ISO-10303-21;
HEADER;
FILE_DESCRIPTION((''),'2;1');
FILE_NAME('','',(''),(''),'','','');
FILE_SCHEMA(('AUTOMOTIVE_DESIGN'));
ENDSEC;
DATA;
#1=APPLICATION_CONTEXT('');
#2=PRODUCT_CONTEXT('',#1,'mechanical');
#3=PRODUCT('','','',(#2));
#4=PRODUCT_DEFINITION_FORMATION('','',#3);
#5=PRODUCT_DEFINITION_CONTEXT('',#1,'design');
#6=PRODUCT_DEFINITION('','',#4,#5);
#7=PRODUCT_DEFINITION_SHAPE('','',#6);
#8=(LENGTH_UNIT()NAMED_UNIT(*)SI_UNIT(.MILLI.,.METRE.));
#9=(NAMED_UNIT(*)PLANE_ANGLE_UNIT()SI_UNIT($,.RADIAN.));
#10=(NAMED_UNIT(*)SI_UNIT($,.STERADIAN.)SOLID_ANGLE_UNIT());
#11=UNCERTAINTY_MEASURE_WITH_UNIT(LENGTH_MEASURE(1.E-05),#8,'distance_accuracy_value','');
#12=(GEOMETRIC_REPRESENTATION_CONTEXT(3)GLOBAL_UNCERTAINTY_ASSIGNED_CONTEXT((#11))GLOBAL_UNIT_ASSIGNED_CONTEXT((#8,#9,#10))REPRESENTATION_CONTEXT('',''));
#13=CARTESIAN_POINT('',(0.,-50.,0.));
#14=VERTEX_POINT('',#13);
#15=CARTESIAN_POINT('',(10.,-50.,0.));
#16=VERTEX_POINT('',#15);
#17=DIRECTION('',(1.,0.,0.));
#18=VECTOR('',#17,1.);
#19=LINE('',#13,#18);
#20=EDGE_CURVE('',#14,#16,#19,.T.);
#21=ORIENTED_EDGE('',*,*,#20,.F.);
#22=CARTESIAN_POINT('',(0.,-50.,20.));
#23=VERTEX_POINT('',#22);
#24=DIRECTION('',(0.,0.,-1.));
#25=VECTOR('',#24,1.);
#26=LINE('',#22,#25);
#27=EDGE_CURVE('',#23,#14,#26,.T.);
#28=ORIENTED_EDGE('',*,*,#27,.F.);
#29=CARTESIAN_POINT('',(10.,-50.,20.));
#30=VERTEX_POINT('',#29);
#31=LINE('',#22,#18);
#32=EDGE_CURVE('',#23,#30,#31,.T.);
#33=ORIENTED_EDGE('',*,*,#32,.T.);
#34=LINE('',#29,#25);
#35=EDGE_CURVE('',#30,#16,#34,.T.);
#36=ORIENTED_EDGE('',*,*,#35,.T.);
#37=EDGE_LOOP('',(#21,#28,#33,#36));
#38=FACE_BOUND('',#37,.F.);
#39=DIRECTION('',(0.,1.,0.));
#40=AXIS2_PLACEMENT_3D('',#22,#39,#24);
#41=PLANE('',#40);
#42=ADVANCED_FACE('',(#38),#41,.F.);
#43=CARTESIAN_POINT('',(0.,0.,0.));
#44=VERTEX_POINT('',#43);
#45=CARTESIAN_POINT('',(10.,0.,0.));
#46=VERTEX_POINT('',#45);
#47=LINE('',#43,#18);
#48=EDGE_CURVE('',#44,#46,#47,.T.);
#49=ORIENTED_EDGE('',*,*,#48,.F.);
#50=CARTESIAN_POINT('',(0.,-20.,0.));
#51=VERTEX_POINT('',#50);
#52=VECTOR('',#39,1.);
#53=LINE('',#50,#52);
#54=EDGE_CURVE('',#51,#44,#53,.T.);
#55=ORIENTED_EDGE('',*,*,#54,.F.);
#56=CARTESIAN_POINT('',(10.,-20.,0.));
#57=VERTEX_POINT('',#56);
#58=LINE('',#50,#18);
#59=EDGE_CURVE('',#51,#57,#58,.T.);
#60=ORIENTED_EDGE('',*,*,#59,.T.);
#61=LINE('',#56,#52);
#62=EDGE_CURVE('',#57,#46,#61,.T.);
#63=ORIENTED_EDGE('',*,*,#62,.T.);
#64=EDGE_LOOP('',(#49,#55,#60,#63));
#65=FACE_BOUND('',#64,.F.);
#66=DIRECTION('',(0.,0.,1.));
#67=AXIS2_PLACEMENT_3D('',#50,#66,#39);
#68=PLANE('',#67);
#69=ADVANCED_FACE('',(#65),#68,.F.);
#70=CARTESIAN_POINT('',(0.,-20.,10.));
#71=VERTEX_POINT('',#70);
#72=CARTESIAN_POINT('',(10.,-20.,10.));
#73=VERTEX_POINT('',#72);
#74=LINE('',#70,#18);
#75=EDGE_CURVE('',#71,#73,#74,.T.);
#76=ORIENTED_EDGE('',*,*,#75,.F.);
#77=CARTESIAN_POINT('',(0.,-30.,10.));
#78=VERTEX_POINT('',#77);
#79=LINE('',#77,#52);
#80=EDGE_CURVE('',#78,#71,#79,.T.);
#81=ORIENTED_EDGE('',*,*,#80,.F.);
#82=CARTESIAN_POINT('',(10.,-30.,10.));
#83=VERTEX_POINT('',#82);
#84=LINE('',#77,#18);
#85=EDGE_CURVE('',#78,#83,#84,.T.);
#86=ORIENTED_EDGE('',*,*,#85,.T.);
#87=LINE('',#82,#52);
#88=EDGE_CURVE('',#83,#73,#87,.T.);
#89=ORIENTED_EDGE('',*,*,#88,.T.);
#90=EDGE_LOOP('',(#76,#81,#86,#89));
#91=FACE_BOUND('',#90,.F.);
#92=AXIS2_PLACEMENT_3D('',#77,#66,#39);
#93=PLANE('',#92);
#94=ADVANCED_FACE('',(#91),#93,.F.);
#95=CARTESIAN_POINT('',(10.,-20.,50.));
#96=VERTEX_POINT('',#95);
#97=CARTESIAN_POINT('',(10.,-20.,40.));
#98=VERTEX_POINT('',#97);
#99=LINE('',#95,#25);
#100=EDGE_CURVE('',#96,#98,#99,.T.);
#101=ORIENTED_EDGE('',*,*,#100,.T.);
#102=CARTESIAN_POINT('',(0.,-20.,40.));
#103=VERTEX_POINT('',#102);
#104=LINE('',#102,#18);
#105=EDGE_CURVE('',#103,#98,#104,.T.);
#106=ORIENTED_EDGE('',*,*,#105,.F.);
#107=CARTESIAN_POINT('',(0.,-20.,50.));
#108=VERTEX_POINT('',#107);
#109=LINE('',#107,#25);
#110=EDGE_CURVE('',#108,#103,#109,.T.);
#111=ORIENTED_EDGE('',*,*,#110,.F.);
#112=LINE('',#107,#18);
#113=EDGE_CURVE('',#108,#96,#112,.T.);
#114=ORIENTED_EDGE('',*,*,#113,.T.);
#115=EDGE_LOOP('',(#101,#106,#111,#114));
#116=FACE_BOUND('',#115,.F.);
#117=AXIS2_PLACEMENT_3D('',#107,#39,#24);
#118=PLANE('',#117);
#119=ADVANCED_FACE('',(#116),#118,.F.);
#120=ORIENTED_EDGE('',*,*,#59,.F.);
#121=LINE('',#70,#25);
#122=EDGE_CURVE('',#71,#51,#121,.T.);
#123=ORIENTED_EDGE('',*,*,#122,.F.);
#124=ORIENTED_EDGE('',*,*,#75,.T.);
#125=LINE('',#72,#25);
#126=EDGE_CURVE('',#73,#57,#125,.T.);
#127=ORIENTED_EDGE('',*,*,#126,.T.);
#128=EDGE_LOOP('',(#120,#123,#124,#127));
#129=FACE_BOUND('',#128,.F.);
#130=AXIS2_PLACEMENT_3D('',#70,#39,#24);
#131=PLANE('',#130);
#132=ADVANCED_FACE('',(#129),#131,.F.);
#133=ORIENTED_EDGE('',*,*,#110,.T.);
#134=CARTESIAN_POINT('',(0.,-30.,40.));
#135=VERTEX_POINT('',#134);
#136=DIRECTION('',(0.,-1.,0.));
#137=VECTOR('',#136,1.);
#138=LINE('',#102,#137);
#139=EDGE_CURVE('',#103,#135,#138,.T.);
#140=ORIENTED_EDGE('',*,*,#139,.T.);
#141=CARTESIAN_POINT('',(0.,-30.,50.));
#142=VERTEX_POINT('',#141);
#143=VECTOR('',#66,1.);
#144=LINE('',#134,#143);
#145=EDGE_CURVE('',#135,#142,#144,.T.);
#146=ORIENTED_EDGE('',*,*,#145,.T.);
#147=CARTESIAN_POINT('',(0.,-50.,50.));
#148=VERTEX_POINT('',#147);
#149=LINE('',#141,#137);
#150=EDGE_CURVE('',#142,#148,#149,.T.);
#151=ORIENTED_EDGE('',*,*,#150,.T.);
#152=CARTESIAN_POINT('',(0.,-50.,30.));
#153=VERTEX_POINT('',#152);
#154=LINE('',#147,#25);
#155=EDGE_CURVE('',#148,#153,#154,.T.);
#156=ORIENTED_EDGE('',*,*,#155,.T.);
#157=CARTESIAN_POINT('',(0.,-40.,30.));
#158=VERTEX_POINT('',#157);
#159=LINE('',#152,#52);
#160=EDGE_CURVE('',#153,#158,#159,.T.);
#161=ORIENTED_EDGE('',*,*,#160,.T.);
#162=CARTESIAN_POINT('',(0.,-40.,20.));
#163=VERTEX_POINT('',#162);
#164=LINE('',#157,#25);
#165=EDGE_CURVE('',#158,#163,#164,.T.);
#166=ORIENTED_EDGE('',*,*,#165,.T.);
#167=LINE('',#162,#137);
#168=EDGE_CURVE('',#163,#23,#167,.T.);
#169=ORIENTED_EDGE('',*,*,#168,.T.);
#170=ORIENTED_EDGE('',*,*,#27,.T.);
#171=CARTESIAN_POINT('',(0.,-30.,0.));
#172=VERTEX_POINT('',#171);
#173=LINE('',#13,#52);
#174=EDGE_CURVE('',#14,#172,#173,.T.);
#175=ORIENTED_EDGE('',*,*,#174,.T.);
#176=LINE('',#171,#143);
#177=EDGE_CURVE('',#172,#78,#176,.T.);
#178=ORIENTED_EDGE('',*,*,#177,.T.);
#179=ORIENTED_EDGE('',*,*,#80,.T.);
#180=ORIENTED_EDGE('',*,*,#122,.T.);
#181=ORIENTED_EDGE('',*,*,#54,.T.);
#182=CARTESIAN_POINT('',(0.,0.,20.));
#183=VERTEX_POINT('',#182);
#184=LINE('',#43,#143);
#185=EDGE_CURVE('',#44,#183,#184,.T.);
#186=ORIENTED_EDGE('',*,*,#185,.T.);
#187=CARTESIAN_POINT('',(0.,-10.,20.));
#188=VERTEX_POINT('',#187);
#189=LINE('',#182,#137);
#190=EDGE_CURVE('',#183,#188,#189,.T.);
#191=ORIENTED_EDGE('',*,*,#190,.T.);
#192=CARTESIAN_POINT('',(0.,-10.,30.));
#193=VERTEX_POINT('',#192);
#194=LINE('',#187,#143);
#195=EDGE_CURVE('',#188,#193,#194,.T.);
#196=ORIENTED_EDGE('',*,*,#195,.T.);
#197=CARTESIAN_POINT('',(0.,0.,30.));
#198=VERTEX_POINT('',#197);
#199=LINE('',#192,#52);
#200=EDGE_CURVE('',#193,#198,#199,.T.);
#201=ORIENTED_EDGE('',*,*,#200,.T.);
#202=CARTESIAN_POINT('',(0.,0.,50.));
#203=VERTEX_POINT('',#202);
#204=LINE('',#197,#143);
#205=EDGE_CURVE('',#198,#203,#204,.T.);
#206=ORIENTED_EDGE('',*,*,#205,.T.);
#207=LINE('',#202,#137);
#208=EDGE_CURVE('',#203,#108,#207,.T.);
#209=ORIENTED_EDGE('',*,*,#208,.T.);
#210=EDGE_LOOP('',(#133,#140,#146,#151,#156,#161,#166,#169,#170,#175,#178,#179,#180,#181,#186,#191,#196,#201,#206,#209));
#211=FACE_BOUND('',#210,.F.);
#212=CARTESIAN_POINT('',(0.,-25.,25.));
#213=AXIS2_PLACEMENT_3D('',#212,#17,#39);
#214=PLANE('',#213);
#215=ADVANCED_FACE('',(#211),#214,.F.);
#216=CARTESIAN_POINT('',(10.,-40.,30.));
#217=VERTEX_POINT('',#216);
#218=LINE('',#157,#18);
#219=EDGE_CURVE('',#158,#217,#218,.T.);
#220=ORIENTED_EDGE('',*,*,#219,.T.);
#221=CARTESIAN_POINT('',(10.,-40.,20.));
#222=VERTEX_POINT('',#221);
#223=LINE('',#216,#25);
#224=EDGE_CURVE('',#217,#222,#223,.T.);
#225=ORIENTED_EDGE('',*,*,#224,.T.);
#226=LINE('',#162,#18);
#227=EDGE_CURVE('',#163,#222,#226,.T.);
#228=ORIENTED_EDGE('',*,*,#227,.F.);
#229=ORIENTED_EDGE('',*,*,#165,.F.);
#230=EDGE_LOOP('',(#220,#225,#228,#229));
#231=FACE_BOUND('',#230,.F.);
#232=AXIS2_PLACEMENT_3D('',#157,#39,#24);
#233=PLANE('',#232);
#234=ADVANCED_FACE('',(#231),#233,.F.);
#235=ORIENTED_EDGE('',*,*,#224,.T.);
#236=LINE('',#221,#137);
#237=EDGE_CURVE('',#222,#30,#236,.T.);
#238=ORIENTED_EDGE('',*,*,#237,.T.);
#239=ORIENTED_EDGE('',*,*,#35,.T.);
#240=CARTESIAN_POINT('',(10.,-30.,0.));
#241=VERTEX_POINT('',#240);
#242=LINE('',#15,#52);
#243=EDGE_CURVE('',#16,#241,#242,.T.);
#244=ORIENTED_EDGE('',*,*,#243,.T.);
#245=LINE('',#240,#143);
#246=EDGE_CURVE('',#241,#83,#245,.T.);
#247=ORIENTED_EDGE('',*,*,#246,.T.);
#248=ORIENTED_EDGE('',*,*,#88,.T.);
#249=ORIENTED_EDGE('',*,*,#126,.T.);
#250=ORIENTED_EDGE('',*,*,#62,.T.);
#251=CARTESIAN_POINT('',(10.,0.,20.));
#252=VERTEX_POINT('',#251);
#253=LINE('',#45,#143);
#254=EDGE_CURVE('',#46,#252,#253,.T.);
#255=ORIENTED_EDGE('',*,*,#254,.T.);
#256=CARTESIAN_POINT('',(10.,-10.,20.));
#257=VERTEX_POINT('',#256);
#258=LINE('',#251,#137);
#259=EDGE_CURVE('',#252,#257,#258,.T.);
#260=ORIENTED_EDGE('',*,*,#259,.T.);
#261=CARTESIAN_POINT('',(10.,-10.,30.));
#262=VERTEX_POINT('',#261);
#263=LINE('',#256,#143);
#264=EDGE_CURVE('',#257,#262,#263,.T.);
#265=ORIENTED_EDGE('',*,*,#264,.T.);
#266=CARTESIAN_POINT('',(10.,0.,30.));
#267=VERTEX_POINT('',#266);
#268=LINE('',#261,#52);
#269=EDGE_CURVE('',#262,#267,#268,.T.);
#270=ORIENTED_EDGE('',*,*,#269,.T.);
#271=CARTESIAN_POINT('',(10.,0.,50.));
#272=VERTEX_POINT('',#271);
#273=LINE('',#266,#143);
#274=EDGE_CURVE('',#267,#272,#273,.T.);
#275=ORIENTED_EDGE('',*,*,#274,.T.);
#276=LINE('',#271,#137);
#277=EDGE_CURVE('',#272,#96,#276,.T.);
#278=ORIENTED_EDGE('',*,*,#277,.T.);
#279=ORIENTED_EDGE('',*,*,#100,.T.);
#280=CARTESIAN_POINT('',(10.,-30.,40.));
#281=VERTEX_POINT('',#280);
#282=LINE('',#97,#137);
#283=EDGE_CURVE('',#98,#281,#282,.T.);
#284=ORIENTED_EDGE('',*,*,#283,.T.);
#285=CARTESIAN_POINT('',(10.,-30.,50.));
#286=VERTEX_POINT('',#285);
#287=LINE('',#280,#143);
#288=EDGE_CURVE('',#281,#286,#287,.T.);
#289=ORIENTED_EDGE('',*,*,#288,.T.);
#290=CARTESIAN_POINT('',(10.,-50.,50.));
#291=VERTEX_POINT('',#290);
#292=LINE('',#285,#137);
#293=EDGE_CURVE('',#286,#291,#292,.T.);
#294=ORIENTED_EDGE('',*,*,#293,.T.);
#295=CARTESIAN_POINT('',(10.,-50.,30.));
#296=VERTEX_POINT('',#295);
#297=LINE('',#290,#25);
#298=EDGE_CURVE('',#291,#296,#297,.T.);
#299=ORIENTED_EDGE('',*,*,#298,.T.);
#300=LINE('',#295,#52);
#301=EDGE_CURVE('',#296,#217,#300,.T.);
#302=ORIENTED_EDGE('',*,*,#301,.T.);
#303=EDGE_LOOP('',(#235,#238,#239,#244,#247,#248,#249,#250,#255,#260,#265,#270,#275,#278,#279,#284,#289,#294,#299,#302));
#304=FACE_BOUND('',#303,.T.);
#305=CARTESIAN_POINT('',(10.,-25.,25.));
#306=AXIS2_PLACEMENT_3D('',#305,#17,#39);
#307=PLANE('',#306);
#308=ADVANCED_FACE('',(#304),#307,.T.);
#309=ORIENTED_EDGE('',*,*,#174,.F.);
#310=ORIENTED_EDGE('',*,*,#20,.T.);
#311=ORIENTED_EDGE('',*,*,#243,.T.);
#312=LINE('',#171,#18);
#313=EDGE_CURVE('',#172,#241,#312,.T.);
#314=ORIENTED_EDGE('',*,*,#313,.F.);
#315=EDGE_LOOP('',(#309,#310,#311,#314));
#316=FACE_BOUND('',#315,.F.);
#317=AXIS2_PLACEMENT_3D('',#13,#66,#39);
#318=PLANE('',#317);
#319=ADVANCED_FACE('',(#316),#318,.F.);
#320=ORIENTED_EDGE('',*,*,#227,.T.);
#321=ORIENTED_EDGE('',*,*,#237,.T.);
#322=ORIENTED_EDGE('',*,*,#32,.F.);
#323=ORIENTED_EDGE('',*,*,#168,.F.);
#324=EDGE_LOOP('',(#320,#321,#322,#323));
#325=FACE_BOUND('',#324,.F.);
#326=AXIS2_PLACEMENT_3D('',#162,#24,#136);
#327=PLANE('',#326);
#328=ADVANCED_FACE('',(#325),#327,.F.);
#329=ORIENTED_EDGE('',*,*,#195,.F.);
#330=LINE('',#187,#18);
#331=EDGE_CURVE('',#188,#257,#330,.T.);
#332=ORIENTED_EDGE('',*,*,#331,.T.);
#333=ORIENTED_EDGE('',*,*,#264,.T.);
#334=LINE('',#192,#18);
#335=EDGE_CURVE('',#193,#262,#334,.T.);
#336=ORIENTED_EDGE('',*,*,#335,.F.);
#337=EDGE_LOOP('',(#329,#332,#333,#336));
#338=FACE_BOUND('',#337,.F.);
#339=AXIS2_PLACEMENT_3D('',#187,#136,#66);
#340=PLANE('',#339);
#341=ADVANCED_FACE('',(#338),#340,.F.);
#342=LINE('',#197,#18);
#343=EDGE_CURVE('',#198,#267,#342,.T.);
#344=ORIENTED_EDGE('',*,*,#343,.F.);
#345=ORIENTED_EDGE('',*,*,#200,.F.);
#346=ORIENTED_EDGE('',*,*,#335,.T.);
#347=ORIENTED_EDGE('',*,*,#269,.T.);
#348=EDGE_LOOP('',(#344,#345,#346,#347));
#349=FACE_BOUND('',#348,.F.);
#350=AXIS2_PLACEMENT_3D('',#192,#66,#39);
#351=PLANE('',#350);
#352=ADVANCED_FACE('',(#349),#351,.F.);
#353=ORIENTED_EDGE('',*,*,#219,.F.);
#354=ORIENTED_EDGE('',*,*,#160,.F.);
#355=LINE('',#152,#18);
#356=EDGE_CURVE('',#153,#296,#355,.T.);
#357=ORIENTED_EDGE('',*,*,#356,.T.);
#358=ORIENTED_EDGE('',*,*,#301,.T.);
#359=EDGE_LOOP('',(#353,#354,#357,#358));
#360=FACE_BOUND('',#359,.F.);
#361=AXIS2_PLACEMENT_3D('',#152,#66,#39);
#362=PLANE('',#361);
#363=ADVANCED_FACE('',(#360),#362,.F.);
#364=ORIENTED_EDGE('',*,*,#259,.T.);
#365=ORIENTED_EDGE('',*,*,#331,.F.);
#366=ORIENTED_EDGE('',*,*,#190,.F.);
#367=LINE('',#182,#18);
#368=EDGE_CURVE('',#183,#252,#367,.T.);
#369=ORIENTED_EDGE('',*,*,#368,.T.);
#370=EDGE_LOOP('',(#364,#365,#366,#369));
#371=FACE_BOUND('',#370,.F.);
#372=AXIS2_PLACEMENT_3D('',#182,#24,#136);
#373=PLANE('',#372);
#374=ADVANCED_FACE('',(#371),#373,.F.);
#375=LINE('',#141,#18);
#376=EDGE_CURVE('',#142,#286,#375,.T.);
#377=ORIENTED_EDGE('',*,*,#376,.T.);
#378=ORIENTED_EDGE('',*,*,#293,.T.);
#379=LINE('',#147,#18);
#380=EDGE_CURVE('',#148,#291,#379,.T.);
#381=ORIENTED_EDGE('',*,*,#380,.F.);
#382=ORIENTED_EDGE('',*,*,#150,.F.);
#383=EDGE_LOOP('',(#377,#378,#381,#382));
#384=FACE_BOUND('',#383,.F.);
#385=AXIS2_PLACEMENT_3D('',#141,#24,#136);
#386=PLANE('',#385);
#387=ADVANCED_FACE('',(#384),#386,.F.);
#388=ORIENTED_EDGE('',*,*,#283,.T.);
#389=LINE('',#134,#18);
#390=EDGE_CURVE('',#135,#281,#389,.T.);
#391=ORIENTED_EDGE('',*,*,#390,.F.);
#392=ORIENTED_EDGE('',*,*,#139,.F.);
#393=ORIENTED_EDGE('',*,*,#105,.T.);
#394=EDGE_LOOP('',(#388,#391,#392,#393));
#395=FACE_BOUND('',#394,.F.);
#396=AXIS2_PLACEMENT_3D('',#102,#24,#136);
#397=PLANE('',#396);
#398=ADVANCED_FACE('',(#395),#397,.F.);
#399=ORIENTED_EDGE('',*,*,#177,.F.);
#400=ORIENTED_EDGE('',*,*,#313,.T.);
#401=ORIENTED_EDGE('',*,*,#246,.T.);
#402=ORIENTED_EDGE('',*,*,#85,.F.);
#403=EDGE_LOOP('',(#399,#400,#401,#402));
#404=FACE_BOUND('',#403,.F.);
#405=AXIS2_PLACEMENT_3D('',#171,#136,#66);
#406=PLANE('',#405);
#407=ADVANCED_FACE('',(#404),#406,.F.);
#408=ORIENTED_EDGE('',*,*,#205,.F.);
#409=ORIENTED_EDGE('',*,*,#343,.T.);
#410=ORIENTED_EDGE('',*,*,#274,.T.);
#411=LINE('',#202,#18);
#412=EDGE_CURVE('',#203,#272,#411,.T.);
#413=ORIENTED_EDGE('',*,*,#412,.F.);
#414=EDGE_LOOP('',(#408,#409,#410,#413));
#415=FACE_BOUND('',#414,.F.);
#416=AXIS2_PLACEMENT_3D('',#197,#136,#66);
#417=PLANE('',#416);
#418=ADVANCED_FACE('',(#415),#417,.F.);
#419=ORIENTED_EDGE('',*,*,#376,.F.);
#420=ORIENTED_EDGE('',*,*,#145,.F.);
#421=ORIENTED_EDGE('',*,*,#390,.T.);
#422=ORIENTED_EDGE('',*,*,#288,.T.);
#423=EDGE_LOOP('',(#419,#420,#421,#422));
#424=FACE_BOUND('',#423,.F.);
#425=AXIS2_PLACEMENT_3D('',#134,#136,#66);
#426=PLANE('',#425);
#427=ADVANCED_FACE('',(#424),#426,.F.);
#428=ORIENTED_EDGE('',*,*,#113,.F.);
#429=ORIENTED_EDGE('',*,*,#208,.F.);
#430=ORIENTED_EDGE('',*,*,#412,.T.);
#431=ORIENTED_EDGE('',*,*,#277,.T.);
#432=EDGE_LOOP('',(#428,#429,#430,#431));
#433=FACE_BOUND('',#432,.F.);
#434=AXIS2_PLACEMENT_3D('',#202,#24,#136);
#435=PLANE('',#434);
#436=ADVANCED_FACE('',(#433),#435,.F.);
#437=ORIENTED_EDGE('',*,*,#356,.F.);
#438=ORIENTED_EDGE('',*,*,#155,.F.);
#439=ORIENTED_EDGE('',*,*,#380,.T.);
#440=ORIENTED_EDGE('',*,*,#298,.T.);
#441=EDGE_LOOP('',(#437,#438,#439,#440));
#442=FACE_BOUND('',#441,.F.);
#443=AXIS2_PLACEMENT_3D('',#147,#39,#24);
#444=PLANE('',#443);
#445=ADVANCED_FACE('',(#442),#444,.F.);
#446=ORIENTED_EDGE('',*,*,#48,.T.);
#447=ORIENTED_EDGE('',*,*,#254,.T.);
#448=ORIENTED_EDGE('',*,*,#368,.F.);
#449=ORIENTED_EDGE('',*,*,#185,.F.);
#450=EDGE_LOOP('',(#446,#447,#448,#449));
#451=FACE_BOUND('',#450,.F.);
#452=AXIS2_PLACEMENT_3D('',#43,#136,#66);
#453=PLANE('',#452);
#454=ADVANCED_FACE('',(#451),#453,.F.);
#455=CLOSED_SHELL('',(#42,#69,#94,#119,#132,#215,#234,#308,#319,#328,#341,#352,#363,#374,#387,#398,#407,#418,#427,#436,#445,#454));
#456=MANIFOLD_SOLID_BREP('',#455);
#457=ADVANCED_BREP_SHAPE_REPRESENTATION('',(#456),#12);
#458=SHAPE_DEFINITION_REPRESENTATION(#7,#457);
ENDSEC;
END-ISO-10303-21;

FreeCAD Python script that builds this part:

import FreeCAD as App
import Part
import Sketcher

V = App.Vector
Q = App.Units.Quantity


def add_polygon(sketch, points):
    """Adds a closed chain of lines whose ends are joined by coincident constraints."""
    first, n = sketch.GeometryCount, len(points)
    for a, b in zip(points, points[1:] + points[:1]):
        sketch.addGeometry(Part.LineSegment(App.Vector(*a, 0), App.Vector(*b, 0)), False)
    for i in range(n):
        sketch.addConstraint(Sketcher.Constraint("Coincident", first + i, 2, first + (i + 1) % n, 1))

doc = App.newDocument("Part")
body = doc.addObject("PartDesign::Body", "Body")

# Sketch on YZ plane
sketch1 = doc.addObject("Sketcher::SketchObject", "Sketch")
body.addObject(sketch1)
sketch1.AttachmentSupport = (doc.YZ_Plane, [""])
sketch1.MapMode = "FlatFace"
add_polygon(sketch1, [(-30, 50), (-50, 50), (-50, 30), (-40, 30), (-40, 20), (-50, 20), (-50, 0), (-30, 0), (-30, 10), (-20, 10), (-20, 0), (0, 0), (0, 20), (-10, 20), (-10, 30), (0, 30), (0, 50), (-20, 50), (-20, 40), (-30, 40)])  # lines 0-19
sketch1.addConstraint([
    Sketcher.Constraint("Horizontal", 0),
    Sketcher.Constraint("Vertical", 1),
    Sketcher.Constraint("Horizontal", 2),
    Sketcher.Constraint("Vertical", 3),
    Sketcher.Constraint("Horizontal", 4),
    Sketcher.Constraint("Vertical", 5),
    Sketcher.Constraint("Horizontal", 6),
    Sketcher.Constraint("Vertical", 7),
    Sketcher.Constraint("Horizontal", 8),
    Sketcher.Constraint("Vertical", 9),
    Sketcher.Constraint("Horizontal", 10),
    Sketcher.Constraint("Vertical", 11),
    Sketcher.Constraint("Horizontal", 12),
    Sketcher.Constraint("Vertical", 13),
    Sketcher.Constraint("Horizontal", 14),
    Sketcher.Constraint("Vertical", 15),
    Sketcher.Constraint("Horizontal", 16),
    Sketcher.Constraint("Vertical", 17),
    Sketcher.Constraint("Horizontal", 18),
    Sketcher.Constraint("Vertical", 19),
    Sketcher.Constraint("Coincident", 10, 2, -1, 1),
    Sketcher.Constraint("PointOnObject", 5, 2, -1),
    Sketcher.Constraint("PointOnObject", 14, 2, -2),
    Sketcher.Constraint("Horizontal", 4, 2, 11, 2),
    Sketcher.Constraint("Horizontal", 2, 2, 13, 2),
    Sketcher.Constraint("Horizontal", 0, 2, 15, 2),
    Sketcher.Constraint("Vertical", 1, 2, 4, 2),
    Sketcher.Constraint("Vertical", 9, 2, 16, 2),
    Sketcher.Constraint("Vertical", 7, 2, 18, 2),
    Sketcher.Constraint("Equal", 4, 8),
    Sketcher.Constraint("Equal", 6, 10),
    Sketcher.Constraint("Equal", 8, 12),
    Sketcher.Constraint("Equal", 16, 1),
    Sketcher.Constraint("Equal", 18, 3),
    Sketcher.Constraint("Equal", 1, 5),
    Sketcher.Constraint("Equal", 3, 7),
    Sketcher.Constraint("Equal", 13, 17),
    Sketcher.Constraint("DistanceX", 0, 2, 0, 1, Q("20 mm")),
    Sketcher.Constraint("DistanceX", 2, 1, 2, 2, Q("10 mm")),
])
pad1 = doc.addObject("PartDesign::Pad", "Pad")
body.addObject(pad1)
pad1.Profile = sketch1
pad1.Length = 10

doc.recompute()
